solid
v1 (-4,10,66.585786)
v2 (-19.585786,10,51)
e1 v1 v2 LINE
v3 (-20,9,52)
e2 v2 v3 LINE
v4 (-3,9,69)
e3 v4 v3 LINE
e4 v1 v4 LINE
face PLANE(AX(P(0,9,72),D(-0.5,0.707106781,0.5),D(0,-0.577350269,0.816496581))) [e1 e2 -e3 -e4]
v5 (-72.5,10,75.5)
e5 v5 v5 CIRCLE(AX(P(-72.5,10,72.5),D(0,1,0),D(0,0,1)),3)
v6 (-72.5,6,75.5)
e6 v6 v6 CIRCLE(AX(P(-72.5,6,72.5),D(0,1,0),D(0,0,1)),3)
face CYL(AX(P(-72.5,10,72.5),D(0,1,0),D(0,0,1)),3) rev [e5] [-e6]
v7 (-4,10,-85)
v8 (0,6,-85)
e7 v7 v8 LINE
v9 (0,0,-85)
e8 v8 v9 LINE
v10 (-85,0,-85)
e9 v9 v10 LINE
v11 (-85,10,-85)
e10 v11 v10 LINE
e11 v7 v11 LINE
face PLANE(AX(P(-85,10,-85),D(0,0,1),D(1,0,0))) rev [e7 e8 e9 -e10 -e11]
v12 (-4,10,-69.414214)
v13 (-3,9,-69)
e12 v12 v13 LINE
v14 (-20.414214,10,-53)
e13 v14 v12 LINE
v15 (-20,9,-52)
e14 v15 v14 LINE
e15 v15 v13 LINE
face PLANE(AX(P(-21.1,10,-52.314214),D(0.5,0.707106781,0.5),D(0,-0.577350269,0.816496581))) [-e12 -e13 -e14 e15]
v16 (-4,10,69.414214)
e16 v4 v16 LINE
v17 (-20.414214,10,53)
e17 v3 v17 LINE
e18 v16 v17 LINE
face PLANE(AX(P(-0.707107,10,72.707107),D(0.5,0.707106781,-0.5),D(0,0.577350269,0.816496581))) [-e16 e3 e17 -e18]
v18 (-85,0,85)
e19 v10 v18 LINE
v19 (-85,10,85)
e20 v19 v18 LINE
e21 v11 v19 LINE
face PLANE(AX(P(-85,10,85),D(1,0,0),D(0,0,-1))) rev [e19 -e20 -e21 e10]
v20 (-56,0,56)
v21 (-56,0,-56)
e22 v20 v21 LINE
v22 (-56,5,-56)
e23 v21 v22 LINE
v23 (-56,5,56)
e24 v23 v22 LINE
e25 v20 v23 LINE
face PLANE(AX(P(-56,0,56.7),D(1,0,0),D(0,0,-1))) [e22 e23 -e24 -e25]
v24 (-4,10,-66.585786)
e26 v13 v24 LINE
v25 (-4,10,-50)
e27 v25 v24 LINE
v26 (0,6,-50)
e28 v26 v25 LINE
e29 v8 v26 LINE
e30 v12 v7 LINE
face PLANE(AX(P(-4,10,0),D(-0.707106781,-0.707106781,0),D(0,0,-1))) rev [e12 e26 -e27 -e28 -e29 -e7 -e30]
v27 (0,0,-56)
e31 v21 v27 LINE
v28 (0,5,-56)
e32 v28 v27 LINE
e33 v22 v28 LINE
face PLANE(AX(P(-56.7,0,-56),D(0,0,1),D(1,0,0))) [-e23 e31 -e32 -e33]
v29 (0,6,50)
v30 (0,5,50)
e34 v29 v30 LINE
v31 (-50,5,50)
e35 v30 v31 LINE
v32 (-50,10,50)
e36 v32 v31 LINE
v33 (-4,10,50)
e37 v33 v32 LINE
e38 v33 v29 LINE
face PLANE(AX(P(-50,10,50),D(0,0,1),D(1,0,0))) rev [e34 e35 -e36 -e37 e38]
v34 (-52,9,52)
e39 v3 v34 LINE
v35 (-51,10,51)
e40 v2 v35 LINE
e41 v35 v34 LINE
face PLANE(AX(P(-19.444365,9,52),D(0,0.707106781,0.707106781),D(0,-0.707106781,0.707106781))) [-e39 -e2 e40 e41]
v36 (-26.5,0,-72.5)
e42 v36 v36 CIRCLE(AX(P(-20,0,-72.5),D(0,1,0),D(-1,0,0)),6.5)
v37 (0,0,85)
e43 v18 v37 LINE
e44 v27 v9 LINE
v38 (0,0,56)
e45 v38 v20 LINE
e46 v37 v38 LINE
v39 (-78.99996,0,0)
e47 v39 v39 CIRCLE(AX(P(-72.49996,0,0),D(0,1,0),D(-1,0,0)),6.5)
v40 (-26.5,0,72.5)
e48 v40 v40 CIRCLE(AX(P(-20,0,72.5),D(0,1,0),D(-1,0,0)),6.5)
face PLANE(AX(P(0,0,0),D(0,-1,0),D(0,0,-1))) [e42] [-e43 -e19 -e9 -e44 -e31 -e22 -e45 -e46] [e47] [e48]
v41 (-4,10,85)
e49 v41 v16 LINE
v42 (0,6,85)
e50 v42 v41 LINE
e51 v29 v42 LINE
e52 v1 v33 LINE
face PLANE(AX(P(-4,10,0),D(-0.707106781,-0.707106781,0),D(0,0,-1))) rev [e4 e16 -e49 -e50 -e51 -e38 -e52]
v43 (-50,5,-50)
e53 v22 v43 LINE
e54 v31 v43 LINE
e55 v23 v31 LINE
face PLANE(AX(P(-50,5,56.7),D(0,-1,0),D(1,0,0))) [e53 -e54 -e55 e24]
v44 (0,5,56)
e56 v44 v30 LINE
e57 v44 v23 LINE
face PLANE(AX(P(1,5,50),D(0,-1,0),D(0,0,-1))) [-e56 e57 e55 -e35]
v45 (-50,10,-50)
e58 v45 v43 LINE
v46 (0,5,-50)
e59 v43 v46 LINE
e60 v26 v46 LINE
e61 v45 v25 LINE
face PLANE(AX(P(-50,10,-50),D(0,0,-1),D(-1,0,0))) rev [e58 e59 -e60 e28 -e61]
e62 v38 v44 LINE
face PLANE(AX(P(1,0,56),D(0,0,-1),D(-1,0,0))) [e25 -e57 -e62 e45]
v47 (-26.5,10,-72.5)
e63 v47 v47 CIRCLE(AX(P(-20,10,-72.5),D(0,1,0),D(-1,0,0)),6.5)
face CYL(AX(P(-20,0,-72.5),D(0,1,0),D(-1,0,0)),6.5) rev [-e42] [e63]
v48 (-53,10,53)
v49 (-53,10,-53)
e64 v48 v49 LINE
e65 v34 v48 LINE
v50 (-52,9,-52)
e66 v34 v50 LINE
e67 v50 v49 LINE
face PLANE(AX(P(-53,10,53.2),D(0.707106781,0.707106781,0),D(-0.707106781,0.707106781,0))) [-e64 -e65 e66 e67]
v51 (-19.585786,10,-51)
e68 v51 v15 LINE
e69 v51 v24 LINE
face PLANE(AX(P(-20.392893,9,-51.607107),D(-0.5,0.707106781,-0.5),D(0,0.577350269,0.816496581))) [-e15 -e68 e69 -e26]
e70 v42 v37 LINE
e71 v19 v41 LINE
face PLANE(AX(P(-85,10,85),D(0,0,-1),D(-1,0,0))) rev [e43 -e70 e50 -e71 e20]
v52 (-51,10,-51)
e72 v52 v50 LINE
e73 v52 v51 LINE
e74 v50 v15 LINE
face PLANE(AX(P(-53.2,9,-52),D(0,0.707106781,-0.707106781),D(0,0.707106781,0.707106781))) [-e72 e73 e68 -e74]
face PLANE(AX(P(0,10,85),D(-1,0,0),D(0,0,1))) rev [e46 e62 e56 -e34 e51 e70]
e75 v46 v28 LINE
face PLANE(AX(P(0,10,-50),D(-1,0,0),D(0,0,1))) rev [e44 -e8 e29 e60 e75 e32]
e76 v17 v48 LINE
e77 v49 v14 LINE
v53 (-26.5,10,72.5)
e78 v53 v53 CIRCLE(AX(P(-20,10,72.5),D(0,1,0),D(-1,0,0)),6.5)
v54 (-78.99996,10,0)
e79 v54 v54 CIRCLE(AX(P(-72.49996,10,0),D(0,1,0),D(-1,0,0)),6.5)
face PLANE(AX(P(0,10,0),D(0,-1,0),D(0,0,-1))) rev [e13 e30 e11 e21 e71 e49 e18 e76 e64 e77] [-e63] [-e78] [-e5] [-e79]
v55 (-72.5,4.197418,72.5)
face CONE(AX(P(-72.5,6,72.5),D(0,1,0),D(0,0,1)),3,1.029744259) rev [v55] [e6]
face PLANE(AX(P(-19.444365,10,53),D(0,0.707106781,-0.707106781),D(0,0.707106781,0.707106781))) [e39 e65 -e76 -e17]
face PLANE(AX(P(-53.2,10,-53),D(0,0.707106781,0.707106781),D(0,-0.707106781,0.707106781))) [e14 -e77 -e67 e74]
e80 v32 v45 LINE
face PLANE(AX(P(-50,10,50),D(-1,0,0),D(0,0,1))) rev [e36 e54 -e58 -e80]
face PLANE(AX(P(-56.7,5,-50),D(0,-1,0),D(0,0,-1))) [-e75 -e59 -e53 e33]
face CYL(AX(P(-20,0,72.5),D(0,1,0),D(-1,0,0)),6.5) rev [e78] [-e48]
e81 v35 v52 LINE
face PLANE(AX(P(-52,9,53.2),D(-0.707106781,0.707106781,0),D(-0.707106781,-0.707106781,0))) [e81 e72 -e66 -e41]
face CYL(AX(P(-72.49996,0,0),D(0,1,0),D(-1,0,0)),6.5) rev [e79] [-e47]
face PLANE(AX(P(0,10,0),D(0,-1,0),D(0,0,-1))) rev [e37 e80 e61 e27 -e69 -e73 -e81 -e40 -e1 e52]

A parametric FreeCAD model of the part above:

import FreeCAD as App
import Part
import Sketcher
from FreeCAD import Vector


def edges_at(feature, points):
    """Names of the edges that pass closest to the given points."""
    edges = feature.Shape.Edges
    near = lambda p: min(range(len(edges)), key=lambda i: edges[i].distToShape(Part.Vertex(*p))[0])
    return sorted({f"Edge{near(p) + 1}" for p in points})

doc = App.newDocument("Part")
params = doc.addObject("Spreadsheet::Sheet", "Params")
for row, (alias, value) in enumerate([
    ("sketch1_width", "50 mm"),
    ("sketch1_width2", "85 mm"),
    ("sketch1_height", "35 mm"),
    ("sketch1_height2", "100 mm"),
    ("pad1_length", "10 mm"),
    ("sketch2_width", "5 mm"),
    ("sketch2_height", "6 mm"),
    ("sketch3_width", "50 mm"),
    ("sketch3_height", "100 mm"),
    ("chamfer_size", "4 mm"),
    ("sketch4_diameter", "13 mm"),
    ("sketch5_diameter", "6 mm"),
    ("hole_diameter", "6 mm"),
    ("hole_depth", "4 mm"),
    ("sketch6_height", "2 mm"),
    ("sketch7_width", "32 mm"),
    ("sketch7_height", "104 mm"),
], start=1):
    params.set(f"A{row}", alias)
    params.set(f"B{row}", "=" + value)
    params.setAlias(f"B{row}", alias)

body = doc.addObject("PartDesign::Body", "Body")

# Sketch on XZ plane
sketch1 = body.newObject("Sketcher::SketchObject", "Sketch")
sketch1.AttachmentSupport = (doc.getObject("XZ_Plane"), [""])
sketch1.MapMode = "FlatFace"
sketch1.addGeometry(Part.LineSegment(Vector(0, 85, 0), Vector(0, 50, 0)), False)
sketch1.addGeometry(Part.LineSegment(Vector(0, 50, 0), Vector(-50, 50, 0)), False)
sketch1.addGeometry(Part.LineSegment(Vector(-50, 50, 0), Vector(-50, -50, 0)), False)
sketch1.addGeometry(Part.LineSegment(Vector(-50, -50, 0), Vector(0, -50, 0)), False)
sketch1.addGeometry(Part.LineSegment(Vector(0, -50, 0), Vector(0, -85, 0)), False)
sketch1.addGeometry(Part.LineSegment(Vector(0, -85, 0), Vector(-85, -85, 0)), False)
sketch1.addGeometry(Part.LineSegment(Vector(-85, -85, 0), Vector(-85, 85, 0)), False)
sketch1.addGeometry(Part.LineSegment(Vector(-85, 85, 0), Vector(0, 85, 0)), False)
sketch1.addConstraint(Sketcher.Constraint("Coincident", 0, 2, 1, 1))
sketch1.addConstraint(Sketcher.Constraint("Coincident", 1, 2, 2, 1))
sketch1.addConstraint(Sketcher.Constraint("Coincident", 2, 2, 3, 1))
sketch1.addConstraint(Sketcher.Constraint("Coincident", 3, 2, 4, 1))
sketch1.addConstraint(Sketcher.Constraint("Coincident", 4, 2, 5, 1))
sketch1.addConstraint(Sketcher.Constraint("Coincident", 5, 2, 6, 1))
sketch1.addConstraint(Sketcher.Constraint("Coincident", 6, 2, 7, 1))
sketch1.addConstraint(Sketcher.Constraint("Coincident", 7, 2, 0, 1))
sketch1.addConstraint(Sketcher.Constraint("Vertical", 0))
sketch1.addConstraint(Sketcher.Constraint("Horizontal", 1))
sketch1.addConstraint(Sketcher.Constraint("Vertical", 2))
sketch1.addConstraint(Sketcher.Constraint("Horizontal", 3))
sketch1.addConstraint(Sketcher.Constraint("Vertical", 4))
sketch1.addConstraint(Sketcher.Constraint("Horizontal", 5))
sketch1.addConstraint(Sketcher.Constraint("Vertical", 6))
sketch1.addConstraint(Sketcher.Constraint("Horizontal", 7))
sketch1.addConstraint(Sketcher.Constraint("Symmetric", 0, 2, 3, 2, -1, 1))
sketch1.addConstraint(Sketcher.Constraint("Symmetric", 4, 2, 7, 2, -1))
sketch1.addConstraint(Sketcher.Constraint("DistanceX", 1, 2, 1, 1, 50.0))
sketch1.addConstraint(Sketcher.Constraint("DistanceX", 5, 2, 5, 1, 85.0))
sketch1.addConstraint(Sketcher.Constraint("DistanceY", 0, 2, 0, 1, 35.0))
sketch1.addConstraint(Sketcher.Constraint("DistanceY", 2, 2, 2, 1, 100.0))
sketch1.setExpression("Constraints[18]", "Params.sketch1_width")
sketch1.setExpression("Constraints[19]", "Params.sketch1_width2")
sketch1.setExpression("Constraints[20]", "Params.sketch1_height")
sketch1.setExpression("Constraints[21]", "Params.sketch1_height2")
pad1 = body.newObject("PartDesign::Pad", "Pad")
pad1.Profile = sketch1
pad1.setExpression("Length", "Params.pad1_length")
pad1.Reversed = True

# Sketch on YZ plane
sketch2 = body.newObject("Sketcher::SketchObject", "Sketch001")
sketch2.AttachmentSupport = (doc.getObject("YZ_Plane"), [""])
sketch2.MapMode = "FlatFace"
sketch2.addGeometry(Part.LineSegment(Vector(5, 56, 0), Vector(0, 56, 0)), False)
sketch2.addGeometry(Part.LineSegment(Vector(0, 56, 0), Vector(0, 50, 0)), False)
sketch2.addGeometry(Part.LineSegment(Vector(0, 50, 0), Vector(5, 50, 0)), False)
sketch2.addGeometry(Part.LineSegment(Vector(5, 50, 0), Vector(5, 56, 0)), False)
sketch2.addConstraint(Sketcher.Constraint("Coincident", 0, 2, 1, 1))
sketch2.addConstraint(Sketcher.Constraint("Coincident", 1, 2, 2, 1))
sketch2.addConstraint(Sketcher.Constraint("Coincident", 2, 2, 3, 1))
sketch2.addConstraint(Sketcher.Constraint("Coincident", 3, 2, 0, 1))
sketch2.addConstraint(Sketcher.Constraint("Horizontal", 0))
sketch2.addConstraint(Sketcher.Constraint("Vertical", 1))
sketch2.addConstraint(Sketcher.Constraint("Horizontal", 2))
sketch2.addConstraint(Sketcher.Constraint("Vertical", 3))
sketch2.addConstraint(Sketcher.Constraint("PointOnObject", 0, 2, -2))
sketch2.addConstraint(Sketcher.Constraint("DistanceX", 0, 2, 0, 1, 5.0))
sketch2.addConstraint(Sketcher.Constraint("DistanceY", 1, 2, 1, 1, 6.0))
sketch2.addConstraint(Sketcher.Constraint("DistanceY", -1, 1, 0, 2, 56.0))
sketch2.setExpression("Constraints[9]", "Params.sketch2_width")
sketch2.setExpression("Constraints[10]", "Params.sketch2_height")

# Sketch on XZ plane
sketch3 = body.newObject("Sketcher::SketchObject", "Sketch002")
sketch3.AttachmentSupport = (doc.getObject("XZ_Plane"), [""])
sketch3.MapMode = "FlatFace"
sketch3.addGeometry(Part.LineSegment(Vector(0, 50, 0), Vector(-50, 50, 0)), False)
sketch3.addGeometry(Part.LineSegment(Vector(-50, 50, 0), Vector(-50, -50, 0)), False)
sketch3.addGeometry(Part.LineSegment(Vector(-50, -50, 0), Vector(0, -50, 0)), False)
sketch3.addConstraint(Sketcher.Constraint("Coincident", 0, 2, 1, 1))
sketch3.addConstraint(Sketcher.Constraint("Coincident", 1, 2, 2, 1))
sketch3.addConstraint(Sketcher.Constraint("Horizontal", 0))
sketch3.addConstraint(Sketcher.Constraint("Vertical", 1))
sketch3.addConstraint(Sketcher.Constraint("Horizontal", 2))
sketch3.addConstraint(Sketcher.Constraint("Symmetric", 0, 1, 2, 2, -1, 1))
sketch3.addConstraint(Sketcher.Constraint("PointOnObject", 0, 1, -2))
sketch3.addConstraint(Sketcher.Constraint("DistanceX", 0, 2, 0, 1, 50.0))
sketch3.addConstraint(Sketcher.Constraint("DistanceY", 1, 2, 1, 1, 100.0))
sketch3.setExpression("Constraints[7]", "Params.sketch3_width")
sketch3.setExpression("Constraints[8]", "Params.sketch3_height")
doc.recompute()

subtractivepipe = body.newObject("PartDesign::SubtractivePipe", "SubtractivePipe")
subtractivepipe.Profile = sketch2
subtractivepipe.Spine = (sketch3, ["Edge1", "Edge2", "Edge3"])
subtractivepipe.Transition = "Right corner"
doc.recompute()

chamfer = body.newObject("PartDesign::Chamfer", "Chamfer")
chamfer.Base = (subtractivepipe, edges_at(subtractivepipe, [(0, 10, 67.5), (0, 10, -67.5)]))
chamfer.setExpression("Size", "Params.chamfer_size")

# Sketch on XZ plane
sketch4 = body.newObject("Sketcher::SketchObject", "Sketch003")
sketch4.AttachmentSupport = (doc.getObject("XZ_Plane"), [""])
sketch4.MapMode = "FlatFace"
sketch4.AttachmentOffset = App.Placement(Vector(0, 0, -10), App.Rotation())
sketch4.addGeometry(Part.Circle(Vector(-72.49996, 0, 0), Vector(0, 0, 1), 6.5), False)
sketch4.addGeometry(Part.Circle(Vector(-20, 72.5, 0), Vector(0, 0, 1), 6.5), False)
sketch4.addGeometry(Part.Circle(Vector(-20, -72.5, 0), Vector(0, 0, 1), 6.5), False)
sketch4.addConstraint(Sketcher.Constraint("Equal", 0, 1))
sketch4.addConstraint(Sketcher.Constraint("Equal", 1, 2))
sketch4.addConstraint(Sketcher.Constraint("Symmetric", 1, 3, 2, 3, -1))
sketch4.addConstraint(Sketcher.Constraint("PointOnObject", 0, 3, -1))
sketch4.addConstraint(Sketcher.Constraint("Diameter", 0, 13.0))
sketch4.addConstraint(Sketcher.Constraint("DistanceX", 1, 3, -1, 1, 20.0))
sketch4.addConstraint(Sketcher.Constraint("DistanceY", 2, 3, 1, 3, 145.0))
sketch4.addConstraint(Sketcher.Constraint("DistanceX", 0, 3, -1, 1, 72.49996))
sketch4.setExpression("Constraints[4]", "Params.sketch4_diameter")
pocket1 = body.newObject("PartDesign::Pocket", "Pocket")
pocket1.Profile = sketch4
pocket1.Type = "ThroughAll"
pocket1.Reversed = True

# Sketch on XZ plane
sketch5 = body.newObject("Sketcher::SketchObject", "Sketch004")
sketch5.AttachmentSupport = (doc.getObject("XZ_Plane"), [""])
sketch5.MapMode = "FlatFace"
sketch5.AttachmentOffset = App.Placement(Vector(0, 0, -10), App.Rotation())
sketch5.addGeometry(Part.Circle(Vector(-72.5, 72.5, 0), Vector(0, 0, 1), 3), False)
sketch5.addConstraint(Sketcher.Constraint("Diameter", 0, 6.0))
sketch5.addConstraint(Sketcher.Constraint("DistanceX", 0, 3, -1, 1, 72.5))
sketch5.addConstraint(Sketcher.Constraint("DistanceY", -1, 1, 0, 3, 72.5))
sketch5.setExpression("Constraints[0]", "Params.sketch5_diameter")
doc.recompute()
hole = body.newObject("PartDesign::Hole", "Hole")
hole.Profile = sketch5
hole.ThreadType = "None"
hole.setExpression("Diameter", "Params.hole_diameter")
hole.DepthType = "Dimension"
hole.setExpression("Depth", "Params.hole_depth")
hole.DrillPoint = "Angled"
hole.DrillPointAngle = 118
hole.Reversed = True

# Sketch on an angled plane
sketch6 = body.newObject("Sketcher::SketchObject", "Sketch005")
sketch6.Placement = App.Placement(Vector(36, 0, 36), App.Rotation(Vector(0, -1, 0), Vector(0.707106781, 0, -0.707106781), Vector(0.707106781, 0, 0.707106781), "ZXY"))
sketch6.addGeometry(Part.LineSegment(Vector(-10, -51.911688, 0), Vector(-9, -50.911688, 0)), False)
sketch6.addGeometry(Part.LineSegment(Vector(-9, -50.911688, 0), Vector(-10, -49.911688, 0)), False)
sketch6.addGeometry(Part.LineSegment(Vector(-10, -49.911688, 0), Vector(-10, -51.911688, 0)), False)
sketch6.addConstraint(Sketcher.Constraint("Coincident", 0, 2, 1, 1))
sketch6.addConstraint(Sketcher.Constraint("Coincident", 1, 2, 2, 1))
sketch6.addConstraint(Sketcher.Constraint("Coincident", 2, 2, 0, 1))
sketch6.addConstraint(Sketcher.Constraint("Vertical", 2))
sketch6.addConstraint(Sketcher.Constraint("Perpendicular", 0, 1))
sketch6.addConstraint(Sketcher.Constraint("Equal", 0, 1))
sketch6.addConstraint(Sketcher.Constraint("DistanceY", 2, 2, 2, 1, 2.0))
sketch6.addConstraint(Sketcher.Constraint("DistanceX", 0, 2, -1, 1, 9.0))
sketch6.addConstraint(Sketcher.Constraint("DistanceY", 0, 2, -1, 1, 50.911688))
sketch6.setExpression("Constraints[6]", "Params.sketch6_height")

# Sketch on XZ plane
sketch7 = body.newObject("Sketcher::SketchObject", "Sketch006")
sketch7.AttachmentSupport = (doc.getObject("XZ_Plane"), [""])
sketch7.MapMode = "FlatFace"
sketch7.AttachmentOffset = App.Placement(Vector(0, 0, -10), App.Rotation())
sketch7.addGeometry(Part.LineSegment(Vector(0, 72, 0), Vector(-20, 52, 0)), False)
sketch7.addGeometry(Part.LineSegment(Vector(-20, 52, 0), Vector(-52, 52, 0)), False)
sketch7.addGeometry(Part.LineSegment(Vector(-52, 52, 0), Vector(-52, -52, 0)), False)
sketch7.addGeometry(Part.LineSegment(Vector(-52, -52, 0), Vector(-20, -52, 0)), False)
sketch7.addGeometry(Part.LineSegment(Vector(-20, -52, 0), Vector(0, -72, 0)), False)
sketch7.addConstraint(Sketcher.Constraint("Coincident", 0, 2, 1, 1))
sketch7.addConstraint(Sketcher.Constraint("Coincident", 1, 2, 2, 1))
sketch7.addConstraint(Sketcher.Constraint("Coincident", 2, 2, 3, 1))
sketch7.addConstraint(Sketcher.Constraint("Coincident", 3, 2, 4, 1))
sketch7.addConstraint(Sketcher.Constraint("Horizontal", 1))
sketch7.addConstraint(Sketcher.Constraint("Vertical", 2))
sketch7.addConstraint(Sketcher.Constraint("Horizontal", 3))
sketch7.addConstraint(Sketcher.Constraint("Symmetric", 0, 1, 4, 2, -1, 1))
sketch7.addConstraint(Sketcher.Constraint("Symmetric", 0, 2, 3, 2, -1))
sketch7.addConstraint(Sketcher.Constraint("PointOnObject", 0, 1, -2))
sketch7.addConstraint(Sketcher.Constraint("Perpendicular", 0, 4))
sketch7.addConstraint(Sketcher.Constraint("DistanceX", 1, 2, 1, 1, 32.0))
sketch7.addConstraint(Sketcher.Constraint("DistanceY", 2, 2, 2, 1, 104.0))
sketch7.addConstraint(Sketcher.Constraint("DistanceY", -1, 1, 0, 1, 72.0))
sketch7.setExpression("Constraints[11]", "Params.sketch7_width")
sketch7.setExpression("Constraints[12]", "Params.sketch7_height")
doc.recompute()

subtractivepipe2 = body.newObject("PartDesign::SubtractivePipe", "SubtractivePipe001")
subtractivepipe2.Profile = sketch6
subtractivepipe2.Spine = (sketch7, ["Edge1", "Edge2", "Edge3", "Edge4", "Edge5"])
subtractivepipe2.Transition = "Right corner"

doc.recompute()
